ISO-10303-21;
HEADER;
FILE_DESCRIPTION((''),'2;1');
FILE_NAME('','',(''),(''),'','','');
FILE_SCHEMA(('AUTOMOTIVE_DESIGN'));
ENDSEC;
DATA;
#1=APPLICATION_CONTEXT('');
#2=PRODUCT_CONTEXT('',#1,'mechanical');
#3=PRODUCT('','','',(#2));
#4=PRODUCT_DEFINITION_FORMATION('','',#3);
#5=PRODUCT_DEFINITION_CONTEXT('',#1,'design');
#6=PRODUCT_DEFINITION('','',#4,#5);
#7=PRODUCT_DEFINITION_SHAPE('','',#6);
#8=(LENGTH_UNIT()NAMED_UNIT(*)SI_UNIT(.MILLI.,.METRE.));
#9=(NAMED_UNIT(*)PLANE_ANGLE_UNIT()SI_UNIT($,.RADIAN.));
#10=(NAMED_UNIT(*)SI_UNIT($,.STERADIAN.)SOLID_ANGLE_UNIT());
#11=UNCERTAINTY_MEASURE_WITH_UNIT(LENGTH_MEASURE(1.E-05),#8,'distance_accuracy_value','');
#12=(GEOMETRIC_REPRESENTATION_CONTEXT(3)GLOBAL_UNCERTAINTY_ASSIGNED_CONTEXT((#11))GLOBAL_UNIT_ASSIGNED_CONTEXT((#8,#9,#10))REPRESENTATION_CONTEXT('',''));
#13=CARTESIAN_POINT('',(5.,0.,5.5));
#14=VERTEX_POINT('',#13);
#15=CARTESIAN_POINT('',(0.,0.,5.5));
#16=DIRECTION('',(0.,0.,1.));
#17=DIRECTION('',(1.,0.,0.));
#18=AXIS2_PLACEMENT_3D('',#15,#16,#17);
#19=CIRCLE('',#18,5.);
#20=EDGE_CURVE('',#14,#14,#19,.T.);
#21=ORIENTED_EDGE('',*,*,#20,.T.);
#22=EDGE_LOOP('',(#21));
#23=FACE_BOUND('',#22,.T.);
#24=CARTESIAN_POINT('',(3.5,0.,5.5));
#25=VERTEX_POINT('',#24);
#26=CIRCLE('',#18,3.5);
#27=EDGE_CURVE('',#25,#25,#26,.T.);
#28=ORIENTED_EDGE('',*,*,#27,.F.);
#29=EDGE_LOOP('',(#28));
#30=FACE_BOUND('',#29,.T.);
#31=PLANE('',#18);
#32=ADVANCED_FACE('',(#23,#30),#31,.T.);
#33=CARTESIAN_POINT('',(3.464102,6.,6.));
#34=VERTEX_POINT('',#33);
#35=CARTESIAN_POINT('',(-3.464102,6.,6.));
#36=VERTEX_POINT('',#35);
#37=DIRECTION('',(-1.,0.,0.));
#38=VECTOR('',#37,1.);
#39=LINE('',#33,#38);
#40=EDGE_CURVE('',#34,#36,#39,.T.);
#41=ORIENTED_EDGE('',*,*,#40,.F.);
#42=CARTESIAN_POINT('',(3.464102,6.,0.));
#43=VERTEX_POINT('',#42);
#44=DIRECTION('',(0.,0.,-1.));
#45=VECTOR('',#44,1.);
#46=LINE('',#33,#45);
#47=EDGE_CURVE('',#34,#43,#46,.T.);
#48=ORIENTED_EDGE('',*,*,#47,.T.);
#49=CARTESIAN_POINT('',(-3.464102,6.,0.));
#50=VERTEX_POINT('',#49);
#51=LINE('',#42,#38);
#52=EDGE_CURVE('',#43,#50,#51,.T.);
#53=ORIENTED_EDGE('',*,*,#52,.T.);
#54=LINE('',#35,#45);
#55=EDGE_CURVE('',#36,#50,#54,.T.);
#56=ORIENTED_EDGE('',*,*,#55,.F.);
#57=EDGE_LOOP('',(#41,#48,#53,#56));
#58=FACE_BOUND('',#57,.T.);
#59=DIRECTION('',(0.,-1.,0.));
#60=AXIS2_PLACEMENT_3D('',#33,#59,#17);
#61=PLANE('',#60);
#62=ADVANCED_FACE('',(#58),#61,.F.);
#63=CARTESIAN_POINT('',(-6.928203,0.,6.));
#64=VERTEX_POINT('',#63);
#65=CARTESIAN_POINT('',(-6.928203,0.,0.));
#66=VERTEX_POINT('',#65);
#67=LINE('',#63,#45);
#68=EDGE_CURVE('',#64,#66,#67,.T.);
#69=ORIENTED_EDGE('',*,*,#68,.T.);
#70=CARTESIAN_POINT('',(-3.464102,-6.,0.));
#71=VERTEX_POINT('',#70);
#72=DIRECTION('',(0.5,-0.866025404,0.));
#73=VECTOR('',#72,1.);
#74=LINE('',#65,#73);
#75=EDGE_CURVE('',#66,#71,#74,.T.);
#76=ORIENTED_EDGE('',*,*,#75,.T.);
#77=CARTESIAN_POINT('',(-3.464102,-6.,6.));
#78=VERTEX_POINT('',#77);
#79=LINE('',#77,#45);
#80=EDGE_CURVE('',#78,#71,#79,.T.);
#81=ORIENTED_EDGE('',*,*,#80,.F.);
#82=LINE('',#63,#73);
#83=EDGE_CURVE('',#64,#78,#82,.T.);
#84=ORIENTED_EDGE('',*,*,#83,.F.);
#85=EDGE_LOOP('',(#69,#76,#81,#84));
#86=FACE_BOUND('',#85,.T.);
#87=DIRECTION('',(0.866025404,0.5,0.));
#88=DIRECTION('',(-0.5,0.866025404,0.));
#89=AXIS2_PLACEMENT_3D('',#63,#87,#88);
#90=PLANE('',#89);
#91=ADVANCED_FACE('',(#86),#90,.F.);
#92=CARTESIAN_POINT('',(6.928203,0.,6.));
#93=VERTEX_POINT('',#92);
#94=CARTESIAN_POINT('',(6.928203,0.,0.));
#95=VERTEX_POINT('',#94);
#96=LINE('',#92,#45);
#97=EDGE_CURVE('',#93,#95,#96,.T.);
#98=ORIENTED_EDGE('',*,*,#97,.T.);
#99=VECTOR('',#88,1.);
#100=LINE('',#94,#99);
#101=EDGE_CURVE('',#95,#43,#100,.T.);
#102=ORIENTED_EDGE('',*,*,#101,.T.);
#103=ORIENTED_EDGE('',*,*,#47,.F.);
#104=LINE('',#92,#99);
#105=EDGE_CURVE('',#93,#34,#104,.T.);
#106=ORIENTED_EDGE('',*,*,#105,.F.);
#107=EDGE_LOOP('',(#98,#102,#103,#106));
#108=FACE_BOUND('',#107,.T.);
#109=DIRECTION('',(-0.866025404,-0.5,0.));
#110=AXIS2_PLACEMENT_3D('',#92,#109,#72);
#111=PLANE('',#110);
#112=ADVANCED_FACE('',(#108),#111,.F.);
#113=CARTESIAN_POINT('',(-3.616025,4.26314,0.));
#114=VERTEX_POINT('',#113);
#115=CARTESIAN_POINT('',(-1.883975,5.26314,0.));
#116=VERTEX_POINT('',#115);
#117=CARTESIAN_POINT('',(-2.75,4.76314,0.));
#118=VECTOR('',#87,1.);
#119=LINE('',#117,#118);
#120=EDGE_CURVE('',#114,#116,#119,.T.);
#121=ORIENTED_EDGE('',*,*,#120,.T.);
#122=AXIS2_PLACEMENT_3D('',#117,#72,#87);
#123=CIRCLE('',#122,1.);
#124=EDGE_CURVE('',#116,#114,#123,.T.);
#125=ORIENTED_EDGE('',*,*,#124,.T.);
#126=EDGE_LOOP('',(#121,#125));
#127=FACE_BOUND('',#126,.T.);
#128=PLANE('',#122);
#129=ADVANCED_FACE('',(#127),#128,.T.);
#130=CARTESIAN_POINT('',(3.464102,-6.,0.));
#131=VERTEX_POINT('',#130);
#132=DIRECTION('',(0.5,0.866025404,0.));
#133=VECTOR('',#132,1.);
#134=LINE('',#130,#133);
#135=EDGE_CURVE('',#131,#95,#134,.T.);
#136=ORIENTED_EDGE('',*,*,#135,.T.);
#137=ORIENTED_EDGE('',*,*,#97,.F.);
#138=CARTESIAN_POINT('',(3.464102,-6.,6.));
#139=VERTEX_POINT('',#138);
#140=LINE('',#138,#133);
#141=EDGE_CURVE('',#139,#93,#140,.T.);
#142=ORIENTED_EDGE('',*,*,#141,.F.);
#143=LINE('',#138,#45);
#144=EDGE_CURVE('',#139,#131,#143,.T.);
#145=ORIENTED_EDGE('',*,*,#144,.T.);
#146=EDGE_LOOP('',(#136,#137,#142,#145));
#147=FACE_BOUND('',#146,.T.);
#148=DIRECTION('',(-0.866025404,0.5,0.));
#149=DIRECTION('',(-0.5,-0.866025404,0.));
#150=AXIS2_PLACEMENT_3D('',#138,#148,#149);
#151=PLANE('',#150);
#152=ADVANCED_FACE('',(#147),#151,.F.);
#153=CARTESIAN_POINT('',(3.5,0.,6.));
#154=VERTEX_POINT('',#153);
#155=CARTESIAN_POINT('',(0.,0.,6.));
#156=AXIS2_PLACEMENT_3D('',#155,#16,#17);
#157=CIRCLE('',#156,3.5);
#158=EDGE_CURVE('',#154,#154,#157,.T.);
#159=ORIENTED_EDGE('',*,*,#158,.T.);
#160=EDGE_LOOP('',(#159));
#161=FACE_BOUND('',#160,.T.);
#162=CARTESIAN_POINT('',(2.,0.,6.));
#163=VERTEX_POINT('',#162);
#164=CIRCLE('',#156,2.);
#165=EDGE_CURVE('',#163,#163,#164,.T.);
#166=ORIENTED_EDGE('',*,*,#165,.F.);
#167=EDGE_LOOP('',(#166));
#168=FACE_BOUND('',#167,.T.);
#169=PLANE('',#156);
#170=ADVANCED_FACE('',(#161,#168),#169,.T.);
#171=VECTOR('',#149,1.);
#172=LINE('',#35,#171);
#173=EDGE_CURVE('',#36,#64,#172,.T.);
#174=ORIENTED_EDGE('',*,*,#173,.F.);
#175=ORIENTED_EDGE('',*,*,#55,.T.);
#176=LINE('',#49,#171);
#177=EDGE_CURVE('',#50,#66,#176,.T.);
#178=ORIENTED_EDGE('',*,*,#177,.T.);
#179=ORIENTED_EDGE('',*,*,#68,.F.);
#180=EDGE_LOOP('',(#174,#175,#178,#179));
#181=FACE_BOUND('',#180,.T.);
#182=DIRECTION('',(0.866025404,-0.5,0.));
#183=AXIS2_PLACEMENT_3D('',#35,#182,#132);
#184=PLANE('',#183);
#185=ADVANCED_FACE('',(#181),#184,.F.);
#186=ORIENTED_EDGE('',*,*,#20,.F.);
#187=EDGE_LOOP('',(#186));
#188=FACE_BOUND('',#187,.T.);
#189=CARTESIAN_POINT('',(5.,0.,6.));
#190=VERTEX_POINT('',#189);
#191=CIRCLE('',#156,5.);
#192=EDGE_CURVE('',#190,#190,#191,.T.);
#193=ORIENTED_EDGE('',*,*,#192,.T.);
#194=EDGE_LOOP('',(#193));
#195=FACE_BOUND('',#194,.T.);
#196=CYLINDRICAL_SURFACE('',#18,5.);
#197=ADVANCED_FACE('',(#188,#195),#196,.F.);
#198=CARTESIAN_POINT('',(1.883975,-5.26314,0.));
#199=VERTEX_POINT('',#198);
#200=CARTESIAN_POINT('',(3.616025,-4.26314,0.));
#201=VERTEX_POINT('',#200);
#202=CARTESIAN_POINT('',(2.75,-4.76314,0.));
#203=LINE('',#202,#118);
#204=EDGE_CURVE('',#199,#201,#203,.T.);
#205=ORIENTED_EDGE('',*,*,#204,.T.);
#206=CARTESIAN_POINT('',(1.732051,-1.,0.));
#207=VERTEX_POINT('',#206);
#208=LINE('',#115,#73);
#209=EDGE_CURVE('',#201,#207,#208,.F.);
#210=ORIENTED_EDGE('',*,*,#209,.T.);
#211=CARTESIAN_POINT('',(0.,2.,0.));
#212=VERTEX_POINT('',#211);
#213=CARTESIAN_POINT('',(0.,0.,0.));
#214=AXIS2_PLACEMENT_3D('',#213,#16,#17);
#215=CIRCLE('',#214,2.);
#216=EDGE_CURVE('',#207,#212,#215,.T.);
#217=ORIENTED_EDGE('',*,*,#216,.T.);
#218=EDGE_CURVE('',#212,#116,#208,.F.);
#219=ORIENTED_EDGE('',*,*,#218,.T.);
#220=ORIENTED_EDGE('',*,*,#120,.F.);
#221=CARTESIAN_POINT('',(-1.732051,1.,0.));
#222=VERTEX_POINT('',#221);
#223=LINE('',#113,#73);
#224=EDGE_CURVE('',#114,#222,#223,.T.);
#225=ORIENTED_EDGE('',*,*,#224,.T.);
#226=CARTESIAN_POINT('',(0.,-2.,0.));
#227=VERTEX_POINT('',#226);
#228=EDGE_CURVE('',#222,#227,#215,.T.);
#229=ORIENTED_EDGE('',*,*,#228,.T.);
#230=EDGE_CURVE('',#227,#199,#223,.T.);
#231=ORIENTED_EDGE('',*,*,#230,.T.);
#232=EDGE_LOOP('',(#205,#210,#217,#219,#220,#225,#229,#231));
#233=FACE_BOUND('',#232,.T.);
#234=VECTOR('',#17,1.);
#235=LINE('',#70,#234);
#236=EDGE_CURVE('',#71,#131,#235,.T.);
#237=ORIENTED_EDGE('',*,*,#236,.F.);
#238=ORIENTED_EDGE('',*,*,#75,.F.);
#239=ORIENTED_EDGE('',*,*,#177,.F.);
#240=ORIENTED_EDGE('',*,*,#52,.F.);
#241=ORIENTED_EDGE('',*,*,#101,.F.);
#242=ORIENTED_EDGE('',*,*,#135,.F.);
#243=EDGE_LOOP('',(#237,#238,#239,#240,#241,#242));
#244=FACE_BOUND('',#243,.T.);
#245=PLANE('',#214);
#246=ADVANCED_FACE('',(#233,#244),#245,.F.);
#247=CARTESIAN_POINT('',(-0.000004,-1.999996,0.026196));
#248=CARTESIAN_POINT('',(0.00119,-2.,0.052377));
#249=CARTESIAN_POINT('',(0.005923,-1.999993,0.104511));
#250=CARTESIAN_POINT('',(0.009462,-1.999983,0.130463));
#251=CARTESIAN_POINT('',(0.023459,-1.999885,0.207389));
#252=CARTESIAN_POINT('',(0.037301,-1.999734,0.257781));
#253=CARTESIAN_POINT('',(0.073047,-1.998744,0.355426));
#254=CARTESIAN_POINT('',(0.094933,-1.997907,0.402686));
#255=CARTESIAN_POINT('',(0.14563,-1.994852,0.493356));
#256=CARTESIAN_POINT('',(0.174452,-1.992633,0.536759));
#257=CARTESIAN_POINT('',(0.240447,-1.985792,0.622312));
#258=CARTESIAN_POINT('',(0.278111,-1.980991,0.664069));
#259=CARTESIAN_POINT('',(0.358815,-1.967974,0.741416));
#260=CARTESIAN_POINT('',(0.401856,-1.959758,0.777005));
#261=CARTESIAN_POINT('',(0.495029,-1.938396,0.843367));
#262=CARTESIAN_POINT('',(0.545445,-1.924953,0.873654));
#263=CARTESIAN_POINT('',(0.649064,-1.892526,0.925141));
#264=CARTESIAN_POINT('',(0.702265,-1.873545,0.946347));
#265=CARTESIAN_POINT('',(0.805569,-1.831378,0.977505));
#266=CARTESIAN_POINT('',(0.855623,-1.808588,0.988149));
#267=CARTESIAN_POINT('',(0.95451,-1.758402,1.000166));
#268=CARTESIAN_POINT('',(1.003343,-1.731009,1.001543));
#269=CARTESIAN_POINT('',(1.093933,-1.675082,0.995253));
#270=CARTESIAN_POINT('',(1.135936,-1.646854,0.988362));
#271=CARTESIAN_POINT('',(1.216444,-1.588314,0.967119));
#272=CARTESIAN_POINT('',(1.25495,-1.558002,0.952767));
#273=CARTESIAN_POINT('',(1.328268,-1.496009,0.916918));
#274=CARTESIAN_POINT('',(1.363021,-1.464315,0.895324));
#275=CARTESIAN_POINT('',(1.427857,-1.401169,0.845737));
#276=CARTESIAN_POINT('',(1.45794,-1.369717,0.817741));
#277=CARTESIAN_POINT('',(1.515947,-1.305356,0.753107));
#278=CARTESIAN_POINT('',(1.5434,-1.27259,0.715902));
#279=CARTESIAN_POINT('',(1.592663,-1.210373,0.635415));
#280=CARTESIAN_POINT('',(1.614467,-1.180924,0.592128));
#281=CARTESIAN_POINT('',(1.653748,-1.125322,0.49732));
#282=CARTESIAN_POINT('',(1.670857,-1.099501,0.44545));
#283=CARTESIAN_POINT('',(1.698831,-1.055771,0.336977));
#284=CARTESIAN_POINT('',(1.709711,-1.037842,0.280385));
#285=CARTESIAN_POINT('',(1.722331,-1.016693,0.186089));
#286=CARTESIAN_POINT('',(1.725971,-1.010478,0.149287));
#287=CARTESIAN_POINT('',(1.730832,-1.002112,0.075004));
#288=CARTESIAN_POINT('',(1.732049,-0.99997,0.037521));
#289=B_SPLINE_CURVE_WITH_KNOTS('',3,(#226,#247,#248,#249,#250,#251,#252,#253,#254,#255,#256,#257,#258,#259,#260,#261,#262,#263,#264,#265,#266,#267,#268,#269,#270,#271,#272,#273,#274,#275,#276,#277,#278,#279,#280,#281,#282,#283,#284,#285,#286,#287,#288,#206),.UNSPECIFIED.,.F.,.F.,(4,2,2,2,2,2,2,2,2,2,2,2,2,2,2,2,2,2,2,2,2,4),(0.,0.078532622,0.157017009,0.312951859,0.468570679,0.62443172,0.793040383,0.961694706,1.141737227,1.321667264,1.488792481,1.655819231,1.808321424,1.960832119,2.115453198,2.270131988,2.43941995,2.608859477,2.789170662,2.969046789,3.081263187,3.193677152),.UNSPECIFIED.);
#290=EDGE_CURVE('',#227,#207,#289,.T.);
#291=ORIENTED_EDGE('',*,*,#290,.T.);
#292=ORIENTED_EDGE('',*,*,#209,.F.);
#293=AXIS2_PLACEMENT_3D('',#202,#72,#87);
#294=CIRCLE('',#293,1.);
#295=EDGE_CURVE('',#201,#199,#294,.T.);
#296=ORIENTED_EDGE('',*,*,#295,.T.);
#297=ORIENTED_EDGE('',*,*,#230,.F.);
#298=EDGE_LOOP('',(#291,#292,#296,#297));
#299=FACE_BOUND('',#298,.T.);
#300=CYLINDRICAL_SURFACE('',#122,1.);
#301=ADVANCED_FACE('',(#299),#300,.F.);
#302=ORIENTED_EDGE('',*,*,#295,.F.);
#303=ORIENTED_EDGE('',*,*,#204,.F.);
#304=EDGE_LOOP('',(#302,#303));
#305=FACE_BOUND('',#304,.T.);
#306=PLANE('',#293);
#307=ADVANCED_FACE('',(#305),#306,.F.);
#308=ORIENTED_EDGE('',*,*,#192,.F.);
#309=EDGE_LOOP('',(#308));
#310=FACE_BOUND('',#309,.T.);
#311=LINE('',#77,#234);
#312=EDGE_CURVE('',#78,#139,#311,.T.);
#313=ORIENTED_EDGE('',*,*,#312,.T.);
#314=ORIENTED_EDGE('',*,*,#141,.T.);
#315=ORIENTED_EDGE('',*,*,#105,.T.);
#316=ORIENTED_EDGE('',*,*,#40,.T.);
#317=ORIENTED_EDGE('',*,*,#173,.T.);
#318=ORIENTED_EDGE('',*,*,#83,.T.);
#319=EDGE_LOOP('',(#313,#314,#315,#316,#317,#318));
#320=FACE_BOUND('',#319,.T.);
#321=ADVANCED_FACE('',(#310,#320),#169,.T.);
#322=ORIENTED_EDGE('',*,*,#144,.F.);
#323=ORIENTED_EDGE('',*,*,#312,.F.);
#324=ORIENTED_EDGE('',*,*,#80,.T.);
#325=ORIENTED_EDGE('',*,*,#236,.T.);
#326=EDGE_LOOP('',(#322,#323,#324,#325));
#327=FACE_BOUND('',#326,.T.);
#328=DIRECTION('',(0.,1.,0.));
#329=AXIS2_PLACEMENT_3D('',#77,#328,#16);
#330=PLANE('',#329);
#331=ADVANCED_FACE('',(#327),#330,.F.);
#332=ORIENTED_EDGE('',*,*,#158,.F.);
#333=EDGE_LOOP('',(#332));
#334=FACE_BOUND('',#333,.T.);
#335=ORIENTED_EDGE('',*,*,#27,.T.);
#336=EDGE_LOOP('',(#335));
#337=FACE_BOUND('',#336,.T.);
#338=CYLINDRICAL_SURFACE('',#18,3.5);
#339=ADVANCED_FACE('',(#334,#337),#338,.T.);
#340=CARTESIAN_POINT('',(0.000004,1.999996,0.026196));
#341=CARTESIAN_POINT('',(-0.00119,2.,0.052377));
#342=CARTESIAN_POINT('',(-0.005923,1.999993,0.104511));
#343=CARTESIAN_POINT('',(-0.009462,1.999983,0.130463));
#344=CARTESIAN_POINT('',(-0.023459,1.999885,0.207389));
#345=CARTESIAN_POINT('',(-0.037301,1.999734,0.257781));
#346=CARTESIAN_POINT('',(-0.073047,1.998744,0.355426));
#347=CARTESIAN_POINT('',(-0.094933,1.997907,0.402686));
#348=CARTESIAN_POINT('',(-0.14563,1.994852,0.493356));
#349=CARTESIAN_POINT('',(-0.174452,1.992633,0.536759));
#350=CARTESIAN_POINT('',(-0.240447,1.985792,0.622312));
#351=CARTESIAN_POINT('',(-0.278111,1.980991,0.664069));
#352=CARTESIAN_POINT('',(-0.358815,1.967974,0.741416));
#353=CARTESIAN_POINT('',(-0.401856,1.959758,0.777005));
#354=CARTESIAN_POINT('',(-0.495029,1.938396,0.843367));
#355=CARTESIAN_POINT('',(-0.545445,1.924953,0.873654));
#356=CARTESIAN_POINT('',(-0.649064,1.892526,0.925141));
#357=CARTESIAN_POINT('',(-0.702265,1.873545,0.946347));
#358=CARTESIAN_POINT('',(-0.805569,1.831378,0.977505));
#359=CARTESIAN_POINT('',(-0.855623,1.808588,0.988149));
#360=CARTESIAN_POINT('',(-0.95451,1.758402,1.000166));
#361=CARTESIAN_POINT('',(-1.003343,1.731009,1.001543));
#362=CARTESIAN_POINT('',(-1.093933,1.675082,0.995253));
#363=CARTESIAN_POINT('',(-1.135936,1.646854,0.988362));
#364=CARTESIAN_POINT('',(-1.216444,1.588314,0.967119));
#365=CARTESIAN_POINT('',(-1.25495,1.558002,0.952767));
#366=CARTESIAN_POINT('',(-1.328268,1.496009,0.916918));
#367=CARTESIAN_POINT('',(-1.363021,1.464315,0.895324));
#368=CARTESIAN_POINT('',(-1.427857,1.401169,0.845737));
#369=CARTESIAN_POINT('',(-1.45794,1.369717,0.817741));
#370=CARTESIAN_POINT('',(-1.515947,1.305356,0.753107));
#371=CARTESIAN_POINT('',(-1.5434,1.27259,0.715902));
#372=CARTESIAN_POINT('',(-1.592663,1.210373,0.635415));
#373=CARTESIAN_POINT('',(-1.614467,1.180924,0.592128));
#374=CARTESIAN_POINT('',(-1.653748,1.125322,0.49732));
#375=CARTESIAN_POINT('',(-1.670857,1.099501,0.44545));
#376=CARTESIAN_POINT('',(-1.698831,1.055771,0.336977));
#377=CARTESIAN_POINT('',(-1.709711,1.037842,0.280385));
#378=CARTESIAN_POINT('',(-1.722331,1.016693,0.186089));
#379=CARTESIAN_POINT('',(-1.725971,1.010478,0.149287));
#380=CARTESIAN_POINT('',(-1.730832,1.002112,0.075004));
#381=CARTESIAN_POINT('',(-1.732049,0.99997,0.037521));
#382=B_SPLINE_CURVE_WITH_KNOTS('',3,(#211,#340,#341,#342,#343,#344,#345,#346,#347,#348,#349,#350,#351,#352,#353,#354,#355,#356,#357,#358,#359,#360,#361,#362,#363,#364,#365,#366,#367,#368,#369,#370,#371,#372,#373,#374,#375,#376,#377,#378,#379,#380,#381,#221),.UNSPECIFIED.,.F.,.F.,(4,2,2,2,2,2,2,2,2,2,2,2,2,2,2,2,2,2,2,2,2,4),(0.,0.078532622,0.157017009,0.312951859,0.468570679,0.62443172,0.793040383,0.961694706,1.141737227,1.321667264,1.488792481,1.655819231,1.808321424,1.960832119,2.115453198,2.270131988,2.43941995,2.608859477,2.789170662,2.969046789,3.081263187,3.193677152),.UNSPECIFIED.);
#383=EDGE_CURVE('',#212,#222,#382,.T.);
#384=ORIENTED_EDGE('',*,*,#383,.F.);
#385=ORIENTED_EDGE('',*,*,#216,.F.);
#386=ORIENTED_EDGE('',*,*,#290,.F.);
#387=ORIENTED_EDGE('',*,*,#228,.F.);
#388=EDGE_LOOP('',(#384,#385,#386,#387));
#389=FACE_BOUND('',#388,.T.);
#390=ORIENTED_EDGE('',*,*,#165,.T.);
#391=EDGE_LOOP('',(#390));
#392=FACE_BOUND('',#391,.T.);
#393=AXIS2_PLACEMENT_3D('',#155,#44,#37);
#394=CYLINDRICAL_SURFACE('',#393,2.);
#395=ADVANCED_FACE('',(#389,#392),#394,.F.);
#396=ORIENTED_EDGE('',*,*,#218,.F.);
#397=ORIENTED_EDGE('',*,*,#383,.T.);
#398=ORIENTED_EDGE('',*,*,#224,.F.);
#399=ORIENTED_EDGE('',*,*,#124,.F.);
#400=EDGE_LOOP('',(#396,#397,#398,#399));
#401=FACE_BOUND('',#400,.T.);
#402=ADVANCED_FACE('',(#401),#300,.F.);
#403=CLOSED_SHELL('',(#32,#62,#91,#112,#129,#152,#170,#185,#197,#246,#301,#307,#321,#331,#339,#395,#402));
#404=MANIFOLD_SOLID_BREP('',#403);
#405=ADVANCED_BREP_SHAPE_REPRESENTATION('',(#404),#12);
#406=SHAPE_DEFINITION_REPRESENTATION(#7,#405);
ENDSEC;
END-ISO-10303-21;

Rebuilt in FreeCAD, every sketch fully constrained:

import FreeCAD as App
import Part
import Sketcher
Q = App.Units.Quantity

doc = App.newDocument("Part")
body = doc.addObject("PartDesign::Body", "Body")

sketch1 = body.newObject("Sketcher::SketchObject", "Sketch")
sketch1.AttachmentSupport = (doc.getObject("XY_Plane"), [""])
sketch1.MapMode = "FlatFace"
sketch1.addGeometry([
    Part.LineSegment(App.Vector(3.5, -6, 0), App.Vector(6.9, 0, 0)),
    Part.LineSegment(App.Vector(6.9, 0, 0), App.Vector(3.5, 6, 0)),
    Part.LineSegment(App.Vector(3.5, 6, 0), App.Vector(-3.5, 6, 0)),
    Part.LineSegment(App.Vector(-3.5, 6, 0), App.Vector(-6.9, 0, 0)),
    Part.LineSegment(App.Vector(-6.9, 0, 0), App.Vector(-3.5, -6, 0)),
    Part.LineSegment(App.Vector(-3.5, -6, 0), App.Vector(3.5, -6, 0)),
    Part.Circle(App.Vector(0, 0, 0), App.Vector(0, 0, 1), 2),
], False)
sketch1.addConstraint([
    Sketcher.Constraint("Coincident", 0, 2, 1, 1),
    Sketcher.Constraint("Coincident", 1, 2, 2, 1),
    Sketcher.Constraint("Coincident", 2, 2, 3, 1),
    Sketcher.Constraint("Coincident", 3, 2, 4, 1),
    Sketcher.Constraint("Coincident", 4, 2, 5, 1),
    Sketcher.Constraint("Coincident", 5, 2, 0, 1),
    Sketcher.Constraint("Horizontal", 2),
    Sketcher.Constraint("Horizontal", 5),
    Sketcher.Constraint("Coincident", 6, 3, -1, 1),
    Sketcher.Constraint("Symmetric", 0, 2, 3, 2, -1, 1),
    Sketcher.Constraint("Symmetric", 1, 2, 4, 2, -1, 1),
    Sketcher.Constraint("PointOnObject", 0, 2, -1),
    Sketcher.Constraint("Parallel", 0, 3),
    Sketcher.Constraint("Vertical", 2, 2, 4, 2),
    Sketcher.Constraint("Diameter", 6, 4.0),
    Sketcher.Constraint("Angle", 0, Q("60 deg")),
    Sketcher.Constraint("DistanceY", -1, 1, 1, 2, 6.0),
    Sketcher.Constraint("DistanceX", -1, 1, 1, 2, 3.464102),
])
pad1 = body.newObject("PartDesign::Pad", "Pad")
pad1.Profile = sketch1
pad1.Length = 6

sketch2 = body.newObject("Sketcher::SketchObject", "Sketch001")
sketch2.AttachmentSupport = (doc.getObject("XY_Plane"), [""])
sketch2.MapMode = "FlatFace"
sketch2.AttachmentOffset = App.Placement(App.Vector(0, 0, 6), App.Rotation())
sketch2.addGeometry([
    Part.Circle(App.Vector(0, 0, 0), App.Vector(0, 0, 1), 5),
    Part.Circle(App.Vector(0, 0, 0), App.Vector(0, 0, 1), 3.5),
], False)
sketch2.addConstraint([
    Sketcher.Constraint("Coincident", 0, 3, -1, 1),
    Sketcher.Constraint("Coincident", 1, 3, -1, 1),
    Sketcher.Constraint("Diameter", 0, 10.0),
    Sketcher.Constraint("Diameter", 1, 7.0),
])
pocket1 = body.newObject("PartDesign::Pocket", "Pocket")
pocket1.Profile = sketch2
pocket1.Length = 0.5

sketch3 = body.newObject("Sketcher::SketchObject", "Sketch002")
sketch3.Placement = App.Placement(App.Vector(0, 0, 0), App.Rotation(App.Vector(-0.866025404, -0.5, 0), App.Vector(0, 0, -1), App.Vector(0.5, -0.866025404, 0), "ZXY"))
sketch3.addGeometry(Part.Circle(App.Vector(0, 0, 0), App.Vector(0, 0, 1), 1), False)
sketch3.addConstraint([
    Sketcher.Constraint("Coincident", 0, 3, -1, 1),
    Sketcher.Constraint("Diameter", 0, 2.0),
])
pocket2 = body.newObject("PartDesign::Pocket", "Pocket001")
pocket2.Profile = sketch3
pocket2.Length = 11
pocket2.Midplane = True

doc.recompute()
